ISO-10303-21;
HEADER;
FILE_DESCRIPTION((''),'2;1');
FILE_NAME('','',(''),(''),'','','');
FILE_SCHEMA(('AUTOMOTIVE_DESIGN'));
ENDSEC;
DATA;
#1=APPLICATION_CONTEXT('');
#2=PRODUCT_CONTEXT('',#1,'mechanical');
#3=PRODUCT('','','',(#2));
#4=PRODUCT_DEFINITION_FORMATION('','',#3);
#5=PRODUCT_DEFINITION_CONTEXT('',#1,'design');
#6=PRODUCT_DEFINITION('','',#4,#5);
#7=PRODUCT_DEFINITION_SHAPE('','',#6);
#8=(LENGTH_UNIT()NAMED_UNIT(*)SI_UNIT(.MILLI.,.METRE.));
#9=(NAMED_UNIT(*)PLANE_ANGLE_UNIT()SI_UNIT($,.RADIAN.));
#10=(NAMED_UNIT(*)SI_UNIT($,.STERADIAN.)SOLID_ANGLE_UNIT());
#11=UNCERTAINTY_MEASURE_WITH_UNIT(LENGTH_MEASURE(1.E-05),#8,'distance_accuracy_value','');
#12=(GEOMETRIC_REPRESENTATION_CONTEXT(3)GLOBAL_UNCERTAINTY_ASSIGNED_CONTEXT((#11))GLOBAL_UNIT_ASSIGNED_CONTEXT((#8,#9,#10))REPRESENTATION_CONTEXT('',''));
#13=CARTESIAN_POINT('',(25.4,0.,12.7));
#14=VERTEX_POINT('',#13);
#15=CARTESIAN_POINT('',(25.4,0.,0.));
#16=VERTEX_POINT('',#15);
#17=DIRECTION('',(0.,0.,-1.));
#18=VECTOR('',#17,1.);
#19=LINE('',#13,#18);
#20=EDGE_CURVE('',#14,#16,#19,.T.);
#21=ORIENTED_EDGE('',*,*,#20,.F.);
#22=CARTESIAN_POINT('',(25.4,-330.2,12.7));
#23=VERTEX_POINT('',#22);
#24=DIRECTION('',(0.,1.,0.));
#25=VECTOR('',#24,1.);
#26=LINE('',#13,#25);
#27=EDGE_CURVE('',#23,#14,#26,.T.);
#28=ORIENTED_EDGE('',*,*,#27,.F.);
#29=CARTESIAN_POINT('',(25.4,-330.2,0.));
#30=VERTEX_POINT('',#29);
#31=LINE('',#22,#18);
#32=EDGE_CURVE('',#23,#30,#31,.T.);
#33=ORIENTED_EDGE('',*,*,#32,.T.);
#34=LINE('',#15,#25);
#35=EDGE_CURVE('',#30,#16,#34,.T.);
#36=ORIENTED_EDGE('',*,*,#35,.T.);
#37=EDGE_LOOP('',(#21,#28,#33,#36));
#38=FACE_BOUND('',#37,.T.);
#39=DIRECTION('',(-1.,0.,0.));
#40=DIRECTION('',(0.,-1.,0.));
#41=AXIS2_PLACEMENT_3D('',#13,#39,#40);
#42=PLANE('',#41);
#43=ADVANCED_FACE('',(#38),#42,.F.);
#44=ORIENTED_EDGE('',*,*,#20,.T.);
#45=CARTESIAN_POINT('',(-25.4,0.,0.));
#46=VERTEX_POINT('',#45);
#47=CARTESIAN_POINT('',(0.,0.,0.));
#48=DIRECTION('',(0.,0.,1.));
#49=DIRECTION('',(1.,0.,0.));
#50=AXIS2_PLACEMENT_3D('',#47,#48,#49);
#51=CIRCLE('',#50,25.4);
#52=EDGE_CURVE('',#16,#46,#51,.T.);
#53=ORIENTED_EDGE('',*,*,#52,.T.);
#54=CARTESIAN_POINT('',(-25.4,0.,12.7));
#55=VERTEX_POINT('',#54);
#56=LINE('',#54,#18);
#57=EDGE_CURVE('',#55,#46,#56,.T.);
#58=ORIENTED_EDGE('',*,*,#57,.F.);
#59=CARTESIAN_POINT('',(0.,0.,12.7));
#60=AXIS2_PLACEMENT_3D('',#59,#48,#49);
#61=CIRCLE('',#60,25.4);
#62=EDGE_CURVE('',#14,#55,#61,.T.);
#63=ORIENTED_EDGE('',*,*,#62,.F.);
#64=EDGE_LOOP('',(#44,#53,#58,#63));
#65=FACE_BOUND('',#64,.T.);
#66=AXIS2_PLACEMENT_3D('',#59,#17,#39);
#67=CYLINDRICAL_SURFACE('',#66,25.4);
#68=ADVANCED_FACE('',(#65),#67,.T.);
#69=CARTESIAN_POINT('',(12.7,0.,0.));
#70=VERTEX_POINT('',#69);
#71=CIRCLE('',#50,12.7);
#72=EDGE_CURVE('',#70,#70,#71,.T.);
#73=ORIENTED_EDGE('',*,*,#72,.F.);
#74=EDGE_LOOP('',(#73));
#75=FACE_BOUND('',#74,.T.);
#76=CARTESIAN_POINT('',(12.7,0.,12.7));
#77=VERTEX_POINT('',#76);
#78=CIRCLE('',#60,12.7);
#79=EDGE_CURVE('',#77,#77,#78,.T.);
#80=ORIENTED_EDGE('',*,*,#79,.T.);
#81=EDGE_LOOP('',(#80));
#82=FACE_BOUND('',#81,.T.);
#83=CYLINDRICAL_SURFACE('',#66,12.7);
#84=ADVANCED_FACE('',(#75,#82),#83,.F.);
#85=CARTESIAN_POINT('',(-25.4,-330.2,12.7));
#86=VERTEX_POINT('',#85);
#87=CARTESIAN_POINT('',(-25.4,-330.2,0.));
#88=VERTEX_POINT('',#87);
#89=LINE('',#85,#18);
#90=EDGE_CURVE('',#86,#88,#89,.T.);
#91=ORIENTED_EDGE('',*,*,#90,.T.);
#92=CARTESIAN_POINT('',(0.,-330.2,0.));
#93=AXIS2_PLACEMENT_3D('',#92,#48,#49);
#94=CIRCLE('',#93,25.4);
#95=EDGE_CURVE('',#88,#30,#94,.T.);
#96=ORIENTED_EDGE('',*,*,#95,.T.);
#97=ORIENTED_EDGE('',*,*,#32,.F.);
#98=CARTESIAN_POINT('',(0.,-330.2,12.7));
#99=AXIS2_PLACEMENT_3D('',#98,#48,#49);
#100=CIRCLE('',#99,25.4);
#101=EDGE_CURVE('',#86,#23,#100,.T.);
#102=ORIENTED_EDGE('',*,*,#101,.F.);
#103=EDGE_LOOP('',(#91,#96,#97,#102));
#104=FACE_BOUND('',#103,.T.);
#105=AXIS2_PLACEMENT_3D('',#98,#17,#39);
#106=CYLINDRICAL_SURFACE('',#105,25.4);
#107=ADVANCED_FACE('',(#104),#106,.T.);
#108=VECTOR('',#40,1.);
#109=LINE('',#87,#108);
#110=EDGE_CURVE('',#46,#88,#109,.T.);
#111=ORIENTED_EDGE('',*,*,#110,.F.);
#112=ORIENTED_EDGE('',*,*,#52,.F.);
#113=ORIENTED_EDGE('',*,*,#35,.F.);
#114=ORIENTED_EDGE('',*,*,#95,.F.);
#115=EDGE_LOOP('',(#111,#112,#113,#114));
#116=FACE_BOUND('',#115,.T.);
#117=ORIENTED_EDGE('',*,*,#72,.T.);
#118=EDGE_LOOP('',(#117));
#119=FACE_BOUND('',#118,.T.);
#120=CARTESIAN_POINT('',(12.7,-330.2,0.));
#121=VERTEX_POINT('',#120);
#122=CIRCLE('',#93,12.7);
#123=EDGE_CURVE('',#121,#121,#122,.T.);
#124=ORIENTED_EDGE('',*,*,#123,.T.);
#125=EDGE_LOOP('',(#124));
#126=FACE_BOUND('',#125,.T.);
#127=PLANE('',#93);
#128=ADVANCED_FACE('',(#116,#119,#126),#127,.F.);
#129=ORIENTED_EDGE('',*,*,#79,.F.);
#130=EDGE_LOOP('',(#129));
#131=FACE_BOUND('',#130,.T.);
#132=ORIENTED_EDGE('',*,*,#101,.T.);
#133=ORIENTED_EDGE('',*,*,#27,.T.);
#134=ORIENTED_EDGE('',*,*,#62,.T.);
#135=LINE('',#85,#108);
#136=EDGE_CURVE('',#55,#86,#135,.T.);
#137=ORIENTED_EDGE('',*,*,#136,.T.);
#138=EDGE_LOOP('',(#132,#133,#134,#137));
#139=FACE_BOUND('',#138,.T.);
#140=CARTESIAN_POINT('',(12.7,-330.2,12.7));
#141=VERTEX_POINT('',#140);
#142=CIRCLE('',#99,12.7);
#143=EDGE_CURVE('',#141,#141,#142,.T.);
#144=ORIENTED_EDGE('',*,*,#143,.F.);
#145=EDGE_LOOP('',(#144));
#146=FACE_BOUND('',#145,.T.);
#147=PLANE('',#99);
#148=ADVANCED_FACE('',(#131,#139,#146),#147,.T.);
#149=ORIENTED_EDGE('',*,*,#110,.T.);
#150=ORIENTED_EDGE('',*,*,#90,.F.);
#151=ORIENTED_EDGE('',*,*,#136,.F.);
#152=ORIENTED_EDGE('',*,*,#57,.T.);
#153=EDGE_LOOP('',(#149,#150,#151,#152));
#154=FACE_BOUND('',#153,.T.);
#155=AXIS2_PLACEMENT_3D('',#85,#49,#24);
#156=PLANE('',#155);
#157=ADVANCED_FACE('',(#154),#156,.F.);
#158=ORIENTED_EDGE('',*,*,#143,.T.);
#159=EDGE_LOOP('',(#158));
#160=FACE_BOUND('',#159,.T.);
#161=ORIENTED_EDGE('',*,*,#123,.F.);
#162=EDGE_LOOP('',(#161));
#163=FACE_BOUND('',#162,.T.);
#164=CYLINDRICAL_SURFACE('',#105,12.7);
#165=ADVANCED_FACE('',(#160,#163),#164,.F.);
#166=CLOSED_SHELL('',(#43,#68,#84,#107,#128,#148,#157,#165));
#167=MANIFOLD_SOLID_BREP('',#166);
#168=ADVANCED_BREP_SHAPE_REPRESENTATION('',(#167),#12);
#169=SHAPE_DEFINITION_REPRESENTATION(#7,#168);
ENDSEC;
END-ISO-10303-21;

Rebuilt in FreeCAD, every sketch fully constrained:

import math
import FreeCAD as App
import Part
import Sketcher
Q = App.Units.Quantity

doc = App.newDocument("Part")
body = doc.addObject("PartDesign::Body", "Body")

sketch1 = body.newObject("Sketcher::SketchObject", "Sketch")
sketch1.AttachmentSupport = (doc.getObject("XY_Plane"), [""])
sketch1.MapMode = "FlatFace"
sketch1.addGeometry(Part.LineSegment(App.Vector(-25, 0, 0), App.Vector(-25, -330, 0)), False)
sketch1.addGeometry(Part.ArcOfCircle(Part.Circle(App.Vector(0, -330, 0), App.Vector(0, 0, 1), 25), math.radians(180), math.radians(360)), False)
sketch1.addGeometry(Part.LineSegment(App.Vector(25, -330, 0), App.Vector(25, 0, 0)), False)
sketch1.addGeometry(Part.ArcOfCircle(Part.Circle(App.Vector(0, 0, 0), App.Vector(0, 0, 1), 25), math.radians(0), math.radians(180)), False)
sketch1.addGeometry(Part.Circle(App.Vector(0, -330, 0), App.Vector(0, 0, 1), 13), False)
sketch1.addGeometry(Part.Circle(App.Vector(0, 0, 0), App.Vector(0, 0, 1), 13), False)
sketch1.addConstraint(Sketcher.Constraint("Tangent", 0, 2, 1, 1))
sketch1.addConstraint(Sketcher.Constraint("Tangent", 1, 2, 2, 1))
sketch1.addConstraint(Sketcher.Constraint("Tangent", 2, 2, 3, 1))
sketch1.addConstraint(Sketcher.Constraint("Tangent", 3, 2, 0, 1))
sketch1.addConstraint(Sketcher.Constraint("Vertical", 0))
sketch1.addConstraint(Sketcher.Constraint("Vertical", 2))
sketch1.addConstraint(Sketcher.Constraint("Coincident", 3, 3, -1, 1))
sketch1.addConstraint(Sketcher.Constraint("Coincident", 5, 3, -1, 1))
sketch1.addConstraint(Sketcher.Constraint("Coincident", 4, 3, 1, 3))
sketch1.addConstraint(Sketcher.Constraint("Equal", 4, 5))
sketch1.addConstraint(Sketcher.Constraint("Diameter", 4, Q("1 in")))
sketch1.addConstraint(Sketcher.Constraint("Radius", 1, Q("1 in")))
sketch1.addConstraint(Sketcher.Constraint("DistanceY", 0, 2, 0, 1, Q("13 in")))
pad1 = body.newObject("PartDesign::Pad", "Pad")
pad1.Profile = sketch1
pad1.Length = Q("0.5 in")

doc.recompute()
